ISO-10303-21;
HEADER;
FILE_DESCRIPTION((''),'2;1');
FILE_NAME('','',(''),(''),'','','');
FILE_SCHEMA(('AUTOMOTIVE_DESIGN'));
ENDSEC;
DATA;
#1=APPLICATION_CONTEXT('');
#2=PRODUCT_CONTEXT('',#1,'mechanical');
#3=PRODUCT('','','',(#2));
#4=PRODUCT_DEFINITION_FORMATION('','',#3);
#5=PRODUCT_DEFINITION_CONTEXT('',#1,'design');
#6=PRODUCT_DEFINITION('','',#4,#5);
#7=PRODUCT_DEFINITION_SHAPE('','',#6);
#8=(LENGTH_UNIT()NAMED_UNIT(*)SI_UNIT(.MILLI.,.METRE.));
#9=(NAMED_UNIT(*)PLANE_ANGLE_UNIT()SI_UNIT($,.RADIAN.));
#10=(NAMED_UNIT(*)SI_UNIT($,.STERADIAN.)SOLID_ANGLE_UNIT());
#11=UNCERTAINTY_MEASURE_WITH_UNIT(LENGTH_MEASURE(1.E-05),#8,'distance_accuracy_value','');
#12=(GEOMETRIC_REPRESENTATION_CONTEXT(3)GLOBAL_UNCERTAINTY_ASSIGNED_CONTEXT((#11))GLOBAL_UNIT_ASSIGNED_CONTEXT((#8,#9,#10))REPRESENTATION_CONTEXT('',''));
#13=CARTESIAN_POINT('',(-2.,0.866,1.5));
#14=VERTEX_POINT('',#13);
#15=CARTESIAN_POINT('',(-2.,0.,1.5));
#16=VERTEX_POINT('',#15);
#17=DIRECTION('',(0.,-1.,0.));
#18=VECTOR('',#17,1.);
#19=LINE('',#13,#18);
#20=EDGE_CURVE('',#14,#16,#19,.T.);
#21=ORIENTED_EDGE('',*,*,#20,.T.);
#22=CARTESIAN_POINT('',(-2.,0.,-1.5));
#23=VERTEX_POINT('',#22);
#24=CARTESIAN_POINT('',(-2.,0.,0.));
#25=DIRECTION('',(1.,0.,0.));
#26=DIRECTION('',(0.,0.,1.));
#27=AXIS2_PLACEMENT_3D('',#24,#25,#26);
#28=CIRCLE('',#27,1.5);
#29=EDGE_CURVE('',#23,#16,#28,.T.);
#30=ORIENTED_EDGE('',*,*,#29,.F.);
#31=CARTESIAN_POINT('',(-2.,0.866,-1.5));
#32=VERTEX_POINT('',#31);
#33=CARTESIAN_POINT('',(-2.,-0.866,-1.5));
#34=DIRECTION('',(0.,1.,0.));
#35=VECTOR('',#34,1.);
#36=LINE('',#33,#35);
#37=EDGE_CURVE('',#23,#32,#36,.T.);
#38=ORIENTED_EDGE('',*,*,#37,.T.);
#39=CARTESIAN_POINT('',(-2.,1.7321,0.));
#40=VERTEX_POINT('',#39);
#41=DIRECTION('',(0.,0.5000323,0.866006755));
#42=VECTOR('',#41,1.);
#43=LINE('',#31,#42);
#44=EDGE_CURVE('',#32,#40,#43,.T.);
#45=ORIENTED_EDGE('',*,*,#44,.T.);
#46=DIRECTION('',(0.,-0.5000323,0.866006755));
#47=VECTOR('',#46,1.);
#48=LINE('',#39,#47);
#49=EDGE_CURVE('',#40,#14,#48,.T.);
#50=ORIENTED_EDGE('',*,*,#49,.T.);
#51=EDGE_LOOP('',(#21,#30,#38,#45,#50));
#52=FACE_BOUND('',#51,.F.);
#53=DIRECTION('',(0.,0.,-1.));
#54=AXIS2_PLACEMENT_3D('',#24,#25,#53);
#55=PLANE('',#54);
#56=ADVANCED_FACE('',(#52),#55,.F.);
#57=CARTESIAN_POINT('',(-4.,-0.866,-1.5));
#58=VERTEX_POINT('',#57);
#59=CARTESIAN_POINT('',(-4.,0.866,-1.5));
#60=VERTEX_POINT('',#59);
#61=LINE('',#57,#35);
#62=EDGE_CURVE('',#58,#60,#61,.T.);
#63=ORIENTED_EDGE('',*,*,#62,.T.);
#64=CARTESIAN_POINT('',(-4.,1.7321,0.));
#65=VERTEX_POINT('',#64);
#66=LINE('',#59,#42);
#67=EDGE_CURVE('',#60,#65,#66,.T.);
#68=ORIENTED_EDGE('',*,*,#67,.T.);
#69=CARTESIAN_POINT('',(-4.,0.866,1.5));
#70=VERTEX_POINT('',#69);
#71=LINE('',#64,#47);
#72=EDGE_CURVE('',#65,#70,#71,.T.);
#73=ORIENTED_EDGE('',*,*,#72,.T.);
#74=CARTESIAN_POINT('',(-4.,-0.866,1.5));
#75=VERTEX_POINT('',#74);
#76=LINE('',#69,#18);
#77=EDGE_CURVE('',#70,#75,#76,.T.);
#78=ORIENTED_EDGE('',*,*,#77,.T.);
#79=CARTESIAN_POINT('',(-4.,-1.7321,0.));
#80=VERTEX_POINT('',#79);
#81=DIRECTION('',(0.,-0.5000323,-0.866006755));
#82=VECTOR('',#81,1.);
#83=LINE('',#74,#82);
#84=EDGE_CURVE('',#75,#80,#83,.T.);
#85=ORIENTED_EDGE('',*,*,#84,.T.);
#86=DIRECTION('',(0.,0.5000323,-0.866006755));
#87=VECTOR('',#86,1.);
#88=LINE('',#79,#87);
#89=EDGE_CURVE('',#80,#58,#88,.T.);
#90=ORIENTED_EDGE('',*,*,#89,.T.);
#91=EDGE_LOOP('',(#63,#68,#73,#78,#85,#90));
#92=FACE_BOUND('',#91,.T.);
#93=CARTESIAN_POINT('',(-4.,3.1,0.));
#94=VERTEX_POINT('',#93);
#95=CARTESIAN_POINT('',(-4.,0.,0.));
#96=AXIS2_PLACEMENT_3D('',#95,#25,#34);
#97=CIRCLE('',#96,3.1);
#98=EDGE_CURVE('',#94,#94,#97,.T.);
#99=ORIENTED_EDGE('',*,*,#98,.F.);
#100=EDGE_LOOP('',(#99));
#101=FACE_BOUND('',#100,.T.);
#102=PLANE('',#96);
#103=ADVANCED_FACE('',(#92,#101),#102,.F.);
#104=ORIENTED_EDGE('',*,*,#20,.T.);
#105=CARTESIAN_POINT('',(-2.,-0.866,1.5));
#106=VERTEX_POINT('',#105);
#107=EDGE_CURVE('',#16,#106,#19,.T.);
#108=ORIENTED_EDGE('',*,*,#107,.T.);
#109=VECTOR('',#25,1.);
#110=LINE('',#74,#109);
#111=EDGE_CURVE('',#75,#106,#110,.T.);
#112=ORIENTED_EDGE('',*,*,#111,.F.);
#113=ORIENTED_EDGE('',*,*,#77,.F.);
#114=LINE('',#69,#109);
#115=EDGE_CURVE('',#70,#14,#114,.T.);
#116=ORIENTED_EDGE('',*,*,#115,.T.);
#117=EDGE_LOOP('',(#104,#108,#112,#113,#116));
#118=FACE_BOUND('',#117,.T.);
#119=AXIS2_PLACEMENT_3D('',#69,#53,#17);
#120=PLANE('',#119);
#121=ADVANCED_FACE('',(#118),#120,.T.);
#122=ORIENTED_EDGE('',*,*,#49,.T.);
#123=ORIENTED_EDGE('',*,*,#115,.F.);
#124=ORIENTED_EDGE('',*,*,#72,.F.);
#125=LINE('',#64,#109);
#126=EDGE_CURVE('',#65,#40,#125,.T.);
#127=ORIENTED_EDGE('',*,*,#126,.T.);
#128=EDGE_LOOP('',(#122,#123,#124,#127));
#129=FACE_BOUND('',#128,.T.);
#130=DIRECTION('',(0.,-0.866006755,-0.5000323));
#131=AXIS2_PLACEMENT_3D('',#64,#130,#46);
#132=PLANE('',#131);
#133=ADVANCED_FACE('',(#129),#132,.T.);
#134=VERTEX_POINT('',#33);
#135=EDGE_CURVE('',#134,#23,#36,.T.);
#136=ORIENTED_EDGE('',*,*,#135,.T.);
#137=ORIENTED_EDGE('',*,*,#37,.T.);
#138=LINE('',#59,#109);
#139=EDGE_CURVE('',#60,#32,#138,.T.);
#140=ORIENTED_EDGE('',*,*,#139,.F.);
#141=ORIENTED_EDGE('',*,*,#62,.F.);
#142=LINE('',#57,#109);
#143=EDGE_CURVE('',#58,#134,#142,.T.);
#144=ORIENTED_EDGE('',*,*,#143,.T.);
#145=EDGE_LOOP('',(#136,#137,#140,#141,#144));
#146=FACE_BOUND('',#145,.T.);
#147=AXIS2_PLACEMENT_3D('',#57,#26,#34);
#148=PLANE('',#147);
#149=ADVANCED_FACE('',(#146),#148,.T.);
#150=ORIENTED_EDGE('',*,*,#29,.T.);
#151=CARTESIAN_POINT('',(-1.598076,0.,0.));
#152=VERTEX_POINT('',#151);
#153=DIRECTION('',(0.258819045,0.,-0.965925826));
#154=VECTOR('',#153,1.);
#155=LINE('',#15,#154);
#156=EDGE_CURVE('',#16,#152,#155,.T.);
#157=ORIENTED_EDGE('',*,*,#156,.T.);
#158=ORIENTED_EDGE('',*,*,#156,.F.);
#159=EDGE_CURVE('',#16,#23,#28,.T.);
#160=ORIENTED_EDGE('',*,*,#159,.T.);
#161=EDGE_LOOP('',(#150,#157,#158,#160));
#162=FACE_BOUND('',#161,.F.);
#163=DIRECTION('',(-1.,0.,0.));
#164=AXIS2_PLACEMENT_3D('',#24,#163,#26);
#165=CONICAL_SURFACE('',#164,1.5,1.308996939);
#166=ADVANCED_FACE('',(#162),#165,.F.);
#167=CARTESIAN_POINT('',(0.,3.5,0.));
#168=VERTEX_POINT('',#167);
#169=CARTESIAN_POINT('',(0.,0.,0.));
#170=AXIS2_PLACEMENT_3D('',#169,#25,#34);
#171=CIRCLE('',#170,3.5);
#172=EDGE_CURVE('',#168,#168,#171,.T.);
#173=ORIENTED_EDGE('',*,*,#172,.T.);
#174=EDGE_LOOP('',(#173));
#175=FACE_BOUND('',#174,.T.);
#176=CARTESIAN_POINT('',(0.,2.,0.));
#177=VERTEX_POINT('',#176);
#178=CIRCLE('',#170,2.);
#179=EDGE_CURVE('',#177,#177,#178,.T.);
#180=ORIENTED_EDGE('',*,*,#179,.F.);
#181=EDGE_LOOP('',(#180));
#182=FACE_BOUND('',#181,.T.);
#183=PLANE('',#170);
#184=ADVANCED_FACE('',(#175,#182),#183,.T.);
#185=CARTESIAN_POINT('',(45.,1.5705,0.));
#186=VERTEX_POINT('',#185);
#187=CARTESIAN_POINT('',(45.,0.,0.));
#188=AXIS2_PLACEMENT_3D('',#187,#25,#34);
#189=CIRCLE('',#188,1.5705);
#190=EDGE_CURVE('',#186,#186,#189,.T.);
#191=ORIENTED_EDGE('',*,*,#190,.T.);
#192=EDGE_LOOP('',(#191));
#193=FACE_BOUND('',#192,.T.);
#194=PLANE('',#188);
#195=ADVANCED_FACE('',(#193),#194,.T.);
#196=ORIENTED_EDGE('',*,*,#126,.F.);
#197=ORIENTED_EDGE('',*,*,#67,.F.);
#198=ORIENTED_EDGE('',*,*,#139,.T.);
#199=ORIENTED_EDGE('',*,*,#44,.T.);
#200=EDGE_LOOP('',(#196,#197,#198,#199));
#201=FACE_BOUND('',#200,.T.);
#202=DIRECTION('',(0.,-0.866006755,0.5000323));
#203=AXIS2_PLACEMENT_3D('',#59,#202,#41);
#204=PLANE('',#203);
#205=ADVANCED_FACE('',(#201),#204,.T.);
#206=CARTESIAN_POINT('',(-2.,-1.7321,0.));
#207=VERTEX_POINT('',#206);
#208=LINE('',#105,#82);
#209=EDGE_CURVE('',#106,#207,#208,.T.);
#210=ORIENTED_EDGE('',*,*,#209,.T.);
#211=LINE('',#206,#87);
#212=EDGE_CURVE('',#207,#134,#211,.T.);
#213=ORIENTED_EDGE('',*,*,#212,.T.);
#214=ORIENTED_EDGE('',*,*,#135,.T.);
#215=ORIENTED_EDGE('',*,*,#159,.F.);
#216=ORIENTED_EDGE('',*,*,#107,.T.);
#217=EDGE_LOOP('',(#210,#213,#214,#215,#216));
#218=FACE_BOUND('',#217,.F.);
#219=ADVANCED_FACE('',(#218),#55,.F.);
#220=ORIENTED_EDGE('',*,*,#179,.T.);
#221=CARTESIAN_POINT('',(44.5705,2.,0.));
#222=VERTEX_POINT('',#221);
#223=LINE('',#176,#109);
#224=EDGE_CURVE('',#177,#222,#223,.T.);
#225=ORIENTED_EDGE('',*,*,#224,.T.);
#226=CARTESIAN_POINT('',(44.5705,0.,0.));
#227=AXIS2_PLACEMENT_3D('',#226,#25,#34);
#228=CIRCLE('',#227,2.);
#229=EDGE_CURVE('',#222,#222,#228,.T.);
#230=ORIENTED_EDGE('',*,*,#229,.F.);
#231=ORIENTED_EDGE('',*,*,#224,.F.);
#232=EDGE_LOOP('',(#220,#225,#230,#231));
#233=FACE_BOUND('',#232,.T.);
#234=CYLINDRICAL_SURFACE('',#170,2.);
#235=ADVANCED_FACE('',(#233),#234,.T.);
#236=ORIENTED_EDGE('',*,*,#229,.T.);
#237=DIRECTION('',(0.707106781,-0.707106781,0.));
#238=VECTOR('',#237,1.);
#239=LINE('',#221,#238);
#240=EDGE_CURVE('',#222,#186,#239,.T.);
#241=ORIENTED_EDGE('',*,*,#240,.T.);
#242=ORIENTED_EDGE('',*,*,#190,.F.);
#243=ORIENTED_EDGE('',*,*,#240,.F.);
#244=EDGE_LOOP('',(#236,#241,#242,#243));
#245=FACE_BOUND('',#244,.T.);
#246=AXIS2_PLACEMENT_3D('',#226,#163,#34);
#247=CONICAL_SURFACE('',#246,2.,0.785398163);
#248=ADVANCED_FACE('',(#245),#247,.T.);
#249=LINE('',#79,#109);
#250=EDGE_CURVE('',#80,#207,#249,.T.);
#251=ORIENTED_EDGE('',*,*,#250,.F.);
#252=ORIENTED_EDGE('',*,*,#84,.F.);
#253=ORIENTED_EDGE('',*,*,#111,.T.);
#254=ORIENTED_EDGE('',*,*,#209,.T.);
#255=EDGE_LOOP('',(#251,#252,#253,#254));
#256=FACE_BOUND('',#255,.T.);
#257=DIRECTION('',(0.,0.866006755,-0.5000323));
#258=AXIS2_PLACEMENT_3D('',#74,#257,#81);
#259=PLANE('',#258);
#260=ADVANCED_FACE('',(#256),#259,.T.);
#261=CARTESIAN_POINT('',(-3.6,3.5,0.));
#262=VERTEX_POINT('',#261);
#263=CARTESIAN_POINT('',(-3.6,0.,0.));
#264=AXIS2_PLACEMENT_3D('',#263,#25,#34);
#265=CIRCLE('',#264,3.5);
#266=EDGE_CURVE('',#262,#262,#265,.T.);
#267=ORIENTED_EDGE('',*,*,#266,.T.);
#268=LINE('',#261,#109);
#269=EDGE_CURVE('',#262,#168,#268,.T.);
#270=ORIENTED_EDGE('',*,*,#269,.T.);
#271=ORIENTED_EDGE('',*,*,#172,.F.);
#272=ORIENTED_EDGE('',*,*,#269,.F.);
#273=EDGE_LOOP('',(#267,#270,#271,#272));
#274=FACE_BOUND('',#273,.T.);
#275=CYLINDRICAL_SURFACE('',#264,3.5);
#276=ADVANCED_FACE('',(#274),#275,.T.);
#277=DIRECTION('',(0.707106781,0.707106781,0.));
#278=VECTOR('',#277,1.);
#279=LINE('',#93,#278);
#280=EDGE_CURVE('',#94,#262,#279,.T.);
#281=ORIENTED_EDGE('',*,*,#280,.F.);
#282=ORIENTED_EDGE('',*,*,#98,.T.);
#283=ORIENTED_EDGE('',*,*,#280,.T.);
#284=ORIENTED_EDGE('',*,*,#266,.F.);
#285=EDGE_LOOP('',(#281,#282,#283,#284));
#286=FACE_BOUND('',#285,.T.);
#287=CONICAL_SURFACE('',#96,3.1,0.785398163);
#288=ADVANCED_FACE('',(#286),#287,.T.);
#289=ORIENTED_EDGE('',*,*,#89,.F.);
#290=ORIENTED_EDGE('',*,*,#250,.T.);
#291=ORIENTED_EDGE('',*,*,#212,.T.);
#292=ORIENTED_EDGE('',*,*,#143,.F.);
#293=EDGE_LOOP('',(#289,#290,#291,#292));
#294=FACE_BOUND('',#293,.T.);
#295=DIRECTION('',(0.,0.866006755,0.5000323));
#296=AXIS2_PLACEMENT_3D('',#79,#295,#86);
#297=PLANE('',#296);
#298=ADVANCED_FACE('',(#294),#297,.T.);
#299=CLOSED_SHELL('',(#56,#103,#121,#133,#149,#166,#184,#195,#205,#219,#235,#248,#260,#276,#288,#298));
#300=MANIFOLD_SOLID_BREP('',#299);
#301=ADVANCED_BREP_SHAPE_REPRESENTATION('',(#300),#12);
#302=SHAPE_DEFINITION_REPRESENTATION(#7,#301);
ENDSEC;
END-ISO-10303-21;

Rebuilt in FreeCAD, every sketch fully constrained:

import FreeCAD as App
import Part
import Sketcher
from FreeCAD import Vector
Q = App.Units.Quantity


def add_polygon(sketch, points):
    """Adds a closed chain of lines whose ends are joined by coincident constraints."""
    first, n = sketch.GeometryCount, len(points)
    for a, b in zip(points, points[1:] + points[:1]):
        sketch.addGeometry(Part.LineSegment(App.Vector(*a, 0), App.Vector(*b, 0)), False)
    for i in range(n):
        sketch.addConstraint(Sketcher.Constraint("Coincident", first + i, 2, first + (i + 1) % n, 1))

doc = App.newDocument("Part")
body = doc.addObject("PartDesign::Body", "Body")

sketch1 = doc.addObject("Sketcher::SketchObject", "Sketch")
body.addObject(sketch1)
sketch1.AttachmentSupport = (doc.XY_Plane, [""])
sketch1.MapMode = "FlatFace"
add_polygon(sketch1, [(-4, 0), (45, 0), (45, 1.5705), (44.5705, 2), (0, 2), (0, 3.5), (-3.6, 3.5), (-4, 3.1)])
sketch1.addConstraint([
    Sketcher.Constraint("Horizontal", 0),
    Sketcher.Constraint("Vertical", 1),
    Sketcher.Constraint("Horizontal", 3),
    Sketcher.Constraint("Vertical", 4),
    Sketcher.Constraint("Horizontal", 5),
    Sketcher.Constraint("Vertical", 7),
    Sketcher.Constraint("PointOnObject", 0, 2, -1),
    Sketcher.Constraint("PointOnObject", 3, 2, -2),
    Sketcher.Constraint("Perpendicular", 2, 6),
    Sketcher.Constraint("DistanceX", 0, 1, 0, 2, 49.0),
    Sketcher.Constraint("Angle", 2, Q("135 deg")),
    Sketcher.Constraint("DistanceX", 5, 2, 5, 1, 3.6),
    Sketcher.Constraint("DistanceY", 4, 1, 4, 2, 1.5),
    Sketcher.Constraint("DistanceY", 7, 2, 7, 1, 3.1),
    Sketcher.Constraint("DistanceX", -1, 1, 0, 2, 45.0),
    Sketcher.Constraint("DistanceX", 3, 2, 3, 1, 44.5705),
])
revolution = doc.addObject("PartDesign::Revolution", "Revolution")
body.addObject(revolution)
revolution.Profile = sketch1
revolution.ReferenceAxis = (sketch1, ["H_Axis"])
revolution.Angle = 360

sketch2 = doc.addObject("Sketcher::SketchObject", "Sketch001")
body.addObject(sketch2)
sketch2.AttachmentSupport = (doc.YZ_Plane, [""])
sketch2.MapMode = "FlatFace"
sketch2.AttachmentOffset = App.Placement(Vector(0, 0, -4), App.Rotation())
sketch2.addGeometry(Part.Circle(Vector(0, 0, 0), Vector(0, 0, 1), 1.5), False)
sketch2.addConstraint([
    Sketcher.Constraint("Coincident", 0, 3, -1, 1),
    Sketcher.Constraint("Diameter", 0, 3.0),
])
doc.recompute()
hole = doc.addObject("PartDesign::Hole", "Hole")
body.addObject(hole)
hole.Profile = sketch2
hole.ThreadType = "None"
hole.Diameter = 3
hole.DepthType = "Dimension"
hole.Depth = 2
hole.DrillPoint = "Angled"
hole.DrillPointAngle = 150
hole.Reversed = True

sketch3 = doc.addObject("Sketcher::SketchObject", "Sketch002")
body.addObject(sketch3)
sketch3.AttachmentSupport = (doc.YZ_Plane, [""])
sketch3.MapMode = "FlatFace"
sketch3.AttachmentOffset = App.Placement(Vector(0, 0, -4), App.Rotation())
add_polygon(sketch3, [(0.866, 1.5), (-0.866, 1.5), (-1.7321, 0), (-0.866, -1.5), (0.866, -1.5), (1.7321, 0)])
sketch3.addConstraint([
    Sketcher.Constraint("Horizontal", 0),
    Sketcher.Constraint("Horizontal", 3),
    Sketcher.Constraint("Symmetric", 0, 2, 3, 2, -1, 1),
    Sketcher.Constraint("Symmetric", 1, 2, 4, 2, -1, 1),
    Sketcher.Constraint("PointOnObject", 1, 2, -1),
    Sketcher.Constraint("Parallel", 2, 5),
    Sketcher.Constraint("Vertical", 0, 2, 2, 2),
    Sketcher.Constraint("DistanceY", 2, 2, 0, 2, 3.0),
    Sketcher.Constraint("DistanceX", 0, 2, 0, 1, 1.732),
    Sketcher.Constraint("Distance", 1, 1.732),
])
pocket1 = doc.addObject("PartDesign::Pocket", "Pocket")
body.addObject(pocket1)
pocket1.Profile = sketch3
pocket1.Length = 2
pocket1.Reversed = True

doc.recompute()
